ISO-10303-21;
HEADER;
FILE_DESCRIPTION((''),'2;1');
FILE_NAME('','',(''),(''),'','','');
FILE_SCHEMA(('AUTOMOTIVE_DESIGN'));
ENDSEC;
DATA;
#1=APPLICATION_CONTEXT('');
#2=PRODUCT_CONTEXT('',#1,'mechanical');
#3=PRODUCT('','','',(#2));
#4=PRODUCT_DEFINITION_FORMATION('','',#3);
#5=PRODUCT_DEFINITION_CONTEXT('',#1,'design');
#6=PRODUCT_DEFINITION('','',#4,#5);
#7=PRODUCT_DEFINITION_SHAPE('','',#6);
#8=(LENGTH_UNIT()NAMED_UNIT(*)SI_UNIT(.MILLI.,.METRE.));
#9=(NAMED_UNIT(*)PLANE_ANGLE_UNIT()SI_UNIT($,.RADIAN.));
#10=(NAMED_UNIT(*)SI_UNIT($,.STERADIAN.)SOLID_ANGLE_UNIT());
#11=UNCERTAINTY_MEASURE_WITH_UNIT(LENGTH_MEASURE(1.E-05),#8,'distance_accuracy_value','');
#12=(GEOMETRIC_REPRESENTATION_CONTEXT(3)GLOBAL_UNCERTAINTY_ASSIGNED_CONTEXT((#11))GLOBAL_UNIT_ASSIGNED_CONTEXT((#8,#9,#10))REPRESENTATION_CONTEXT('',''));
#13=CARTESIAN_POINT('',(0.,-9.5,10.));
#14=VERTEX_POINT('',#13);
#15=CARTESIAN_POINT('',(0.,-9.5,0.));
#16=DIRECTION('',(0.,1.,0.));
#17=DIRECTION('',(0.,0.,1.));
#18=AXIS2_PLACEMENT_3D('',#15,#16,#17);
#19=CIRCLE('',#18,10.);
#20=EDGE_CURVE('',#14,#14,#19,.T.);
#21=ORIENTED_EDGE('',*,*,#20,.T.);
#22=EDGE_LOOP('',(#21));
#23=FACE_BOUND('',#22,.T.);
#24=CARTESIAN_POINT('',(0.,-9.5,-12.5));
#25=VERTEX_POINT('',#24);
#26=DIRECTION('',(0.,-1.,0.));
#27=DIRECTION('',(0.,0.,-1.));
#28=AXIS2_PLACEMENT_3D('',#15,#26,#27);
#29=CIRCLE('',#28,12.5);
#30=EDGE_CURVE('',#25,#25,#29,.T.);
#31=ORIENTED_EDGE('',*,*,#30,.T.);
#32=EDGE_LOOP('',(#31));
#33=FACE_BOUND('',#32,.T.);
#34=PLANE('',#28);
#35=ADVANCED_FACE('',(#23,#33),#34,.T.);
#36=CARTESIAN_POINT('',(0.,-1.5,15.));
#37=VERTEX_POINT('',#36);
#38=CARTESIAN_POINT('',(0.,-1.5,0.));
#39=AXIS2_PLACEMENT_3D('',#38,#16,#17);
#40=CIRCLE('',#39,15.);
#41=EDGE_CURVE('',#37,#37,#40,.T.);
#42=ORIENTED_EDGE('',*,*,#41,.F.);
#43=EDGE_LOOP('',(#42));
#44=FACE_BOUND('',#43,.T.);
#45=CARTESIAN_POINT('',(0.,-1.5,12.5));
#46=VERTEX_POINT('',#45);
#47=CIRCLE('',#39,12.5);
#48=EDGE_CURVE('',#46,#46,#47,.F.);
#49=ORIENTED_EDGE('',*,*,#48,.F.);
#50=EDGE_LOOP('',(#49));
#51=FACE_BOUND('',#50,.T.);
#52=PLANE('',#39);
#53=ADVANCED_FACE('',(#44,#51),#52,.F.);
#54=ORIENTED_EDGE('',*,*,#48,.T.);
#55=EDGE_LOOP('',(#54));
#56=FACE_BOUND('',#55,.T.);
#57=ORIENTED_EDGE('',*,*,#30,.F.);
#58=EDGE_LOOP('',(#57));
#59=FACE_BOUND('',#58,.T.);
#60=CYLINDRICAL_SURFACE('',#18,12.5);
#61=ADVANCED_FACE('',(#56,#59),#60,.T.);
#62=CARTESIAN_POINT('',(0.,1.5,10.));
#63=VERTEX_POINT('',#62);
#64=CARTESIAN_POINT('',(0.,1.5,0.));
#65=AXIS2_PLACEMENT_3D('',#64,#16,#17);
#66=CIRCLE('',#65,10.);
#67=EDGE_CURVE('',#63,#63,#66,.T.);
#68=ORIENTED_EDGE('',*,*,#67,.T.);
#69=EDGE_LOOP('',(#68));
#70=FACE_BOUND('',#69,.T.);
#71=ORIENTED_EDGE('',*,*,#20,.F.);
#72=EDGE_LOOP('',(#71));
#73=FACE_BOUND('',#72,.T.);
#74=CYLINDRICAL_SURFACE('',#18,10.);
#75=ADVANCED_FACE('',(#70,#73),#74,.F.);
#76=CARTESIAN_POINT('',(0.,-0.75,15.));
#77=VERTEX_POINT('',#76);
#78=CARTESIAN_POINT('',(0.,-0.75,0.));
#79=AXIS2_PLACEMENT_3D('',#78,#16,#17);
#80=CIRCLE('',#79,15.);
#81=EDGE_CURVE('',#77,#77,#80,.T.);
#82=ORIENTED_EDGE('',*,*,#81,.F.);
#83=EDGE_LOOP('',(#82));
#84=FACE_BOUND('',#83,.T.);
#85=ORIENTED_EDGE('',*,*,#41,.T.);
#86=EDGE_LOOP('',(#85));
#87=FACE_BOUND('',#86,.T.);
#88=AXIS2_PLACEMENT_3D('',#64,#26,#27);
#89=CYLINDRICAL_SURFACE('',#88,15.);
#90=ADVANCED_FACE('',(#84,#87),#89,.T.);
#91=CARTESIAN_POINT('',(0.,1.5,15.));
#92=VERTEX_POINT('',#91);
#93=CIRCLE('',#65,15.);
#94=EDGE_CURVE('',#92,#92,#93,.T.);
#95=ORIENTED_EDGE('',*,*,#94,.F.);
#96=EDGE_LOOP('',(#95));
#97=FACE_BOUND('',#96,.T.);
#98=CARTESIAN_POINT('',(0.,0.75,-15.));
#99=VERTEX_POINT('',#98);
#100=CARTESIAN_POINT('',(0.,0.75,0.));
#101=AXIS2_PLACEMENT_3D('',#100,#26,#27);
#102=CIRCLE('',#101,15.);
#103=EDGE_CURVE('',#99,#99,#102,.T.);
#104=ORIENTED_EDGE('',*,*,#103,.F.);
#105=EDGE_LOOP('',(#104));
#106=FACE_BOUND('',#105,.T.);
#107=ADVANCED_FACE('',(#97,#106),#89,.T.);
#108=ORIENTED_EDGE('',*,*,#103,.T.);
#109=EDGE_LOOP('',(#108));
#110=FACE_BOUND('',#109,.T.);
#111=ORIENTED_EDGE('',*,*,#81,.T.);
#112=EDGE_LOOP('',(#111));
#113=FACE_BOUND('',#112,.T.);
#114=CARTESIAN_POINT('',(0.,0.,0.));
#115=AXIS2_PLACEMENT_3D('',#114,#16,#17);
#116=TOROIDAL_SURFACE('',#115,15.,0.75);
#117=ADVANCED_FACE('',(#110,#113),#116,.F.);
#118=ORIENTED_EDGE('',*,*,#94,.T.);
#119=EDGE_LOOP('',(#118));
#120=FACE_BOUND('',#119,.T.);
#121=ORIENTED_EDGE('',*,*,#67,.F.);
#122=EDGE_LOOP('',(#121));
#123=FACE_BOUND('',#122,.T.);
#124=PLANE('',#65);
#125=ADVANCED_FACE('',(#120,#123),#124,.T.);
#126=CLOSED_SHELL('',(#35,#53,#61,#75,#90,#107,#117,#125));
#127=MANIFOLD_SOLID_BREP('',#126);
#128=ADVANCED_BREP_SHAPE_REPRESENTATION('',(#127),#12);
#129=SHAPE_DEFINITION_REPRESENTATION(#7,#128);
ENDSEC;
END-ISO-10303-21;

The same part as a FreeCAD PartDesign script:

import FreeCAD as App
import Part
import Sketcher
Q = App.Units.Quantity

doc = App.newDocument("Part")
body = doc.addObject("PartDesign::Body", "Body")

sketch1 = body.newObject("Sketcher::SketchObject", "Sketch")
sketch1.AttachmentSupport = (doc.getObject("XZ_Plane"), [""])
sketch1.MapMode = "FlatFace"
sketch1.addGeometry(Part.Circle(App.Vector(0, 0, 0), App.Vector(0, 0, 1), 15), False)
sketch1.addConstraint([
    Sketcher.Constraint("Coincident", 0, 3, -1, 1),
    Sketcher.Constraint("Diameter", 0, Q("30 mm")),
])
pad1 = body.newObject("PartDesign::Pad", "Pad")
pad1.Profile = sketch1
pad1.Length = 3
pad1.Midplane = True

sketch2 = body.newObject("Sketcher::SketchObject", "Sketch001")
sketch2.AttachmentSupport = (doc.getObject("YZ_Plane"), [""])
sketch2.MapMode = "FlatFace"
sketch2.addGeometry(Part.Circle(App.Vector(0, -15, 0), App.Vector(0, 0, 1), 0.8), False)
sketch2.addConstraint([
    Sketcher.Constraint("PointOnObject", 0, 3, -2),
    Sketcher.Constraint("Diameter", 0, Q("1.5 mm")),
    Sketcher.Constraint("DistanceY", 0, 3, -1, 1, Q("15 mm")),
])
groove = body.newObject("PartDesign::Groove", "Groove")
groove.Profile = sketch2
groove.ReferenceAxis = (sketch2, ["H_Axis"])
groove.Angle = 360

sketch3 = body.newObject("Sketcher::SketchObject", "Sketch002")
sketch3.AttachmentSupport = (doc.getObject("XZ_Plane"), [""])
sketch3.MapMode = "FlatFace"
sketch3.AttachmentOffset = App.Placement(App.Vector(0, 0, 1.5), App.Rotation())
sketch3.addGeometry(Part.Circle(App.Vector(0, 0, 0), App.Vector(0, 0, 1), 12), False)
sketch3.addConstraint([
    Sketcher.Constraint("Coincident", 0, 3, -1, 1),
    Sketcher.Constraint("Diameter", 0, Q("25 mm")),
])
pad2 = body.newObject("PartDesign::Pad", "Pad001")
pad2.Profile = sketch3
pad2.Length = 8

sketch4 = body.newObject("Sketcher::SketchObject", "Sketch003")
sketch4.AttachmentSupport = (doc.getObject("XZ_Plane"), [""])
sketch4.MapMode = "FlatFace"
sketch4.AttachmentOffset = App.Placement(App.Vector(0, 0, -1.5), App.Rotation())
sketch4.addGeometry(Part.Circle(App.Vector(0, 0, 0), App.Vector(0, 0, 1), 10), False)
sketch4.addConstraint([
    Sketcher.Constraint("Coincident", 0, 3, -1, 1),
    Sketcher.Constraint("Diameter", 0, Q("20 mm")),
])
pocket1 = body.newObject("PartDesign::Pocket", "Pocket")
pocket1.Profile = sketch4
pocket1.Type = "ThroughAll"
pocket1.Reversed = True

doc.recompute()
